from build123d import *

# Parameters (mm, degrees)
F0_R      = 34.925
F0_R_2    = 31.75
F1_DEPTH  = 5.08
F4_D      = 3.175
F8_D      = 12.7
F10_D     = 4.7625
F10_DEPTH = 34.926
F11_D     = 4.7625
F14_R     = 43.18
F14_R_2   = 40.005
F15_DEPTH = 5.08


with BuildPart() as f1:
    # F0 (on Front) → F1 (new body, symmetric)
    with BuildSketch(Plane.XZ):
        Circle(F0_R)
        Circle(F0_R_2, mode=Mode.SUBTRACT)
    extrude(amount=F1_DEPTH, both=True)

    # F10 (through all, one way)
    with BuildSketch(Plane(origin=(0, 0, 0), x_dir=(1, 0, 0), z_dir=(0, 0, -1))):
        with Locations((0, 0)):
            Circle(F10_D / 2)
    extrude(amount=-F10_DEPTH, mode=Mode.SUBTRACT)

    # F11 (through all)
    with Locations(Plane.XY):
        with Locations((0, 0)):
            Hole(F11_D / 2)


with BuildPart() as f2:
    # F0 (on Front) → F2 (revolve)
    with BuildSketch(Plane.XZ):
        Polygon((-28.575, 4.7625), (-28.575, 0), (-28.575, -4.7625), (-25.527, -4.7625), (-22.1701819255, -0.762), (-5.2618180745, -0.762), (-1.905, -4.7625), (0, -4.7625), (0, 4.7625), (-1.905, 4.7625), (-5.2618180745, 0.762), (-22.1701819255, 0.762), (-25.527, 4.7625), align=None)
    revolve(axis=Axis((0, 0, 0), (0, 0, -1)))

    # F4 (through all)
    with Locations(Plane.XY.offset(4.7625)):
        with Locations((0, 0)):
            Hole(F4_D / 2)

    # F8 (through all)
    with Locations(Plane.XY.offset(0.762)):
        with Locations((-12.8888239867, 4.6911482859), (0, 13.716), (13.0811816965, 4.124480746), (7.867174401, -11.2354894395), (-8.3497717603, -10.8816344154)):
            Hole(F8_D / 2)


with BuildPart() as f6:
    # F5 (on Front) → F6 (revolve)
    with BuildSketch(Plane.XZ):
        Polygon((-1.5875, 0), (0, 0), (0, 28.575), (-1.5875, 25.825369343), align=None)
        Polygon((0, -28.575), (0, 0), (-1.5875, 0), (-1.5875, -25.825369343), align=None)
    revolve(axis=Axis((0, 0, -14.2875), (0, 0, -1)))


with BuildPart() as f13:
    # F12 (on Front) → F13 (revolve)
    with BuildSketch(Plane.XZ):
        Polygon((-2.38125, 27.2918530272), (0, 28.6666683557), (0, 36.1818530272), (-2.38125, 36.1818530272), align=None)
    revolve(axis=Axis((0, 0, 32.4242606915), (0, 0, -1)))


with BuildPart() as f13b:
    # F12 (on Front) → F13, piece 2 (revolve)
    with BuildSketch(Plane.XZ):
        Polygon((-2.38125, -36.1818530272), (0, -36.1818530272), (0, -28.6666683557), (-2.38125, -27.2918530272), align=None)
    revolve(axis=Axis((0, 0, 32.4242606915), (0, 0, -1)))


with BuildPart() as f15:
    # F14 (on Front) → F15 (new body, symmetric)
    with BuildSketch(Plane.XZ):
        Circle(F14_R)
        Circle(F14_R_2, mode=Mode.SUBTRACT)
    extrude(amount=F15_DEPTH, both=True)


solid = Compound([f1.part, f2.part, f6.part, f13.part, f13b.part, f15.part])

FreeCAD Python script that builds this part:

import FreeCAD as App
import Part
import Sketcher
from FreeCAD import Vector
Q = App.Units.Quantity

doc = App.newDocument("Part")
body = doc.addObject("PartDesign::Body", "Body")

# Sketch on XZ plane
sketch1 = body.newObject("Sketcher::SketchObject", "Sketch")
sketch1.AttachmentSupport = (doc.getObject("XZ_Plane"), [""])
sketch1.MapMode = "FlatFace"
sketch1.addGeometry([
    Part.Circle(Vector(0, 0, 0), Vector(0, 0, 1), 35),
    Part.Circle(Vector(0, 0, 0), Vector(0, 0, 1), 32),
], False)
sketch1.addConstraint([
    Sketcher.Constraint("Coincident", 0, 3, -1, 1),
    Sketcher.Constraint("Coincident", 1, 3, -1, 1),
    Sketcher.Constraint("Diameter", 1, Q("2.5 in")),
    Sketcher.Constraint("Diameter", 0, Q("2.75 in")),
])
pad1 = body.newObject("PartDesign::Pad", "Pad")
pad1.Profile = sketch1
pad1.Length = Q("0.4 in")
pad1.Midplane = True

# Sketch on XY plane
sketch2 = body.newObject("Sketcher::SketchObject", "Sketch001")
sketch2.AttachmentSupport = (doc.getObject("XY_Plane"), [""])
sketch2.MapMode = "FlatFace"
sketch2.addGeometry(Part.Circle(Vector(0, 0, 0), Vector(0, 0, 1), 2.4), False)
sketch2.addConstraint([
    Sketcher.Constraint("Coincident", 0, 3, -1, 1),
    Sketcher.Constraint("Diameter", 0, Q("0.1875 in")),
])
pocket1 = body.newObject("PartDesign::Pocket", "Pocket")
pocket1.Profile = sketch2
pocket1.Type = "ThroughAll"
pocket1.Reversed = True

# Sketch on XY plane
sketch3 = body.newObject("Sketcher::SketchObject", "Sketch002")
sketch3.AttachmentSupport = (doc.getObject("XY_Plane"), [""])
sketch3.MapMode = "FlatFace"
sketch3.addGeometry(Part.Circle(Vector(0, 0, 0), Vector(0, 0, 1), 2.4), False)
sketch3.addConstraint([
    Sketcher.Constraint("Coincident", 0, 3, -1, 1),
    Sketcher.Constraint("Diameter", 0, Q("0.1875 in")),
])
doc.recompute()
hole = body.newObject("PartDesign::Hole", "Hole")
hole.Profile = sketch3
hole.ThreadType = "None"
hole.Diameter = Q("0.1875 in")
hole.DepthType = "ThroughAll"
body2 = doc.addObject("PartDesign::Body", "Body001")

# Sketch on XZ plane
sketch4 = body2.newObject("Sketcher::SketchObject", "Sketch003")
sketch4.AttachmentSupport = (doc.getObject("XZ_Plane001"), [""])
sketch4.MapMode = "FlatFace"
sketch4.addGeometry([
    Part.LineSegment(Vector(-28.6, 4.8, 0), Vector(-28.6, -4.8, 0)),  # 0
    Part.LineSegment(Vector(-28.6, -4.8, 0), Vector(-25.5, -4.8, 0)),  # 1
    Part.LineSegment(Vector(-25.5, -4.8, 0), Vector(-22.2, -0.8, 0)),  # 2
    Part.LineSegment(Vector(-22.2, -0.8, 0), Vector(-5.3, -0.8, 0)),  # 3
    Part.LineSegment(Vector(-5.3, -0.8, 0), Vector(-1.9, -4.8, 0)),  # 4
    Part.LineSegment(Vector(-1.9, -4.8, 0), Vector(0, -4.8, 0)),  # 5
    Part.LineSegment(Vector(0, -4.8, 0), Vector(0, 4.8, 0)),  # 6
    Part.LineSegment(Vector(0, 4.8, 0), Vector(-1.9, 4.8, 0)),  # 7
    Part.LineSegment(Vector(-1.9, 4.8, 0), Vector(-5.3, 0.8, 0)),  # 8
    Part.LineSegment(Vector(-5.3, 0.8, 0), Vector(-22.2, 0.8, 0)),  # 9
    Part.LineSegment(Vector(-22.2, 0.8, 0), Vector(-25.5, 4.8, 0)),  # 10
    Part.LineSegment(Vector(-25.5, 4.8, 0), Vector(-28.6, 4.8, 0)),  # 11
], False)
sketch4.addConstraint([
    Sketcher.Constraint("Coincident", 0, 2, 1, 1),
    Sketcher.Constraint("Coincident", 1, 2, 2, 1),
    Sketcher.Constraint("Coincident", 2, 2, 3, 1),
    Sketcher.Constraint("Coincident", 3, 2, 4, 1),
    Sketcher.Constraint("Coincident", 4, 2, 5, 1),
    Sketcher.Constraint("Coincident", 5, 2, 6, 1),
    Sketcher.Constraint("Coincident", 6, 2, 7, 1),
    Sketcher.Constraint("Coincident", 7, 2, 8, 1),
    Sketcher.Constraint("Coincident", 8, 2, 9, 1),
    Sketcher.Constraint("Coincident", 9, 2, 10, 1),
    Sketcher.Constraint("Coincident", 10, 2, 11, 1),
    Sketcher.Constraint("Coincident", 11, 2, 0, 1),
    Sketcher.Constraint("Vertical", 0),
    Sketcher.Constraint("Horizontal", 1),
    Sketcher.Constraint("Horizontal", 3),
    Sketcher.Constraint("Horizontal", 5),
    Sketcher.Constraint("Vertical", 6),
    Sketcher.Constraint("Horizontal", 7),
    Sketcher.Constraint("Horizontal", 9),
    Sketcher.Constraint("Horizontal", 11),
    Sketcher.Constraint("Symmetric", 5, 2, 6, 2, -1, 1),
    Sketcher.Constraint("Symmetric", 3, 2, 8, 2, -1),
    Sketcher.Constraint("Symmetric", 1, 2, 10, 2, -1),
    Sketcher.Constraint("Parallel", 2, 8),
    Sketcher.Constraint("Parallel", 4, 10),
    Sketcher.Constraint("Horizontal", 1, 2, 4, 2),
    Sketcher.Constraint("Vertical", 4, 2, 7, 2),
    Sketcher.Constraint("Angle", 2, Q("50 deg")),
    Sketcher.Constraint("DistanceX", 1, 1, 1, 2, Q("0.12 in")),
    Sketcher.Constraint("DistanceX", 5, 1, 5, 2, Q("0.075 in")),
    Sketcher.Constraint("DistanceY", 0, 2, 0, 1, Q("0.375 in")),
    Sketcher.Constraint("DistanceY", 2, 2, -1, 1, Q("0.03 in")),
    Sketcher.Constraint("DistanceX", 1, 2, 4, 2, Q("0.93 in")),
])
revolution = body2.newObject("PartDesign::Revolution", "Revolution")
revolution.Profile = sketch4
revolution.ReferenceAxis = (sketch4, ["V_Axis"])
revolution.Angle = 360

# Sketch on XY plane
sketch5 = body2.newObject("Sketcher::SketchObject", "Sketch004")
sketch5.AttachmentSupport = (doc.getObject("XY_Plane001"), [""])
sketch5.MapMode = "FlatFace"
sketch5.AttachmentOffset = App.Placement(Vector(0, 0, 0.1875 * 25.4), App.Rotation())
sketch5.addGeometry(Part.Circle(Vector(0, 0, 0), Vector(0, 0, 1), 1.6), False)
sketch5.addConstraint([
    Sketcher.Constraint("Coincident", 0, 3, -1, 1),
    Sketcher.Constraint("Diameter", 0, Q("0.125 in")),
])
doc.recompute()
hole2 = body2.newObject("PartDesign::Hole", "Hole001")
hole2.Profile = sketch5
hole2.ThreadType = "None"
hole2.Diameter = Q("0.125 in")
hole2.DepthType = "ThroughAll"

# Sketch on XY plane
sketch6 = body2.newObject("Sketcher::SketchObject", "Sketch005")
sketch6.AttachmentSupport = (doc.getObject("XY_Plane001"), [""])
sketch6.MapMode = "FlatFace"
sketch6.AttachmentOffset = App.Placement(Vector(0, 0, 0.03 * 25.4), App.Rotation())
sketch6.addGeometry([
    Part.Circle(Vector(-13, 5, 0), Vector(0, 0, 1), 6),  # 0
    Part.Circle(Vector(0, 14, 0), Vector(0, 0, 1), 6),  # 1
    Part.Circle(Vector(13, 4, 0), Vector(0, 0, 1), 6),  # 2
    Part.Circle(Vector(8, -11, 0), Vector(0, 0, 1), 6),  # 3
    Part.Circle(Vector(-8, -11, 0), Vector(0, 0, 1), 6),  # 4
], False)
sketch6.addConstraint([
    Sketcher.Constraint("Equal", 0, 1),
    Sketcher.Constraint("Equal", 1, 2),
    Sketcher.Constraint("Equal", 2, 3),
    Sketcher.Constraint("Equal", 3, 4),
    Sketcher.Constraint("PointOnObject", 1, 3, -2),
    Sketcher.Constraint("Diameter", 0, Q("0.5 in")),
    Sketcher.Constraint("DistanceY", -1, 1, 1, 3, Q("0.54 in")),
    Sketcher.Constraint("DistanceX", 0, 3, 3, 3, 20.755998),
    Sketcher.Constraint("DistanceY", -1, 1, 0, 3, 4.691148),
    Sketcher.Constraint("DistanceX", -1, 1, 2, 3, 13.081182),
    Sketcher.Constraint("DistanceY", -1, 1, 2, 3, 4.124481),
    Sketcher.Constraint("DistanceY", 3, 3, -1, 1, 11.235489),
    Sketcher.Constraint("DistanceX", 4, 3, -1, 1, 8.349772),
    Sketcher.Constraint("DistanceX", 0, 3, -1, 1, 12.888824),
    Sketcher.Constraint("DistanceY", 4, 3, -1, 1, 10.881634),
])
doc.recompute()
hole3 = body2.newObject("PartDesign::Hole", "Hole002")
hole3.Profile = sketch6
hole3.ThreadType = "None"
hole3.Diameter = Q("0.5 in")
hole3.DepthType = "ThroughAll"
body3 = doc.addObject("PartDesign::Body", "Body002")

# Sketch on XZ plane
sketch7 = body3.newObject("Sketcher::SketchObject", "Sketch006")
sketch7.AttachmentSupport = (doc.getObject("XZ_Plane002"), [""])
sketch7.MapMode = "FlatFace"
sketch7.addGeometry([
    Part.LineSegment(Vector(0, 28.6, 0), Vector(-1.6, 25.8, 0)),
    Part.LineSegment(Vector(-1.6, 25.8, 0), Vector(-1.6, -25.8, 0)),
    Part.LineSegment(Vector(-1.6, -25.8, 0), Vector(0, -28.6, 0)),
    Part.LineSegment(Vector(0, -28.6, 0), Vector(0, 28.6, 0)),
], False)
sketch7.addConstraint([
    Sketcher.Constraint("Coincident", 0, 2, 1, 1),
    Sketcher.Constraint("Coincident", 1, 2, 2, 1),
    Sketcher.Constraint("Coincident", 2, 2, 3, 1),
    Sketcher.Constraint("Coincident", 3, 2, 0, 1),
    Sketcher.Constraint("Vertical", 1),
    Sketcher.Constraint("Vertical", 3),
    Sketcher.Constraint("Symmetric", 2, 2, 3, 2, -1, 1),
    Sketcher.Constraint("Equal", 0, 2),
    Sketcher.Constraint("Angle", 0, Q("-120 deg")),
    Sketcher.Constraint("DistanceY", 3, 1, 3, 2, Q("2.25 in")),
    Sketcher.Constraint("Distance", 0, Q("0.125 in")),
])
revolution2 = body3.newObject("PartDesign::Revolution", "Revolution001")
revolution2.Profile = sketch7
revolution2.ReferenceAxis = (sketch7, ["V_Axis"])
revolution2.Angle = 360
body4 = doc.addObject("PartDesign::Body", "Body003")

# Sketch on XZ plane
sketch8 = body4.newObject("Sketcher::SketchObject", "Sketch007")
sketch8.AttachmentSupport = (doc.getObject("XZ_Plane003"), [""])
sketch8.MapMode = "FlatFace"
sketch8.addGeometry([
    Part.LineSegment(Vector(-2.4, 27.3, 0), Vector(0, 28.7, 0)),
    Part.LineSegment(Vector(0, 28.7, 0), Vector(0, 36.2, 0)),
    Part.LineSegment(Vector(0, 36.2, 0), Vector(-2.4, 36.2, 0)),
    Part.LineSegment(Vector(-2.4, 36.2, 0), Vector(-2.4, 27.3, 0)),
], False)
sketch8.addConstraint([
    Sketcher.Constraint("Coincident", 0, 2, 1, 1),
    Sketcher.Constraint("Coincident", 1, 2, 2, 1),
    Sketcher.Constraint("Coincident", 2, 2, 3, 1),
    Sketcher.Constraint("Coincident", 3, 2, 0, 1),
    Sketcher.Constraint("Vertical", 1),
    Sketcher.Constraint("Horizontal", 2),
    Sketcher.Constraint("Vertical", 3),
    Sketcher.Constraint("PointOnObject", 0, 2, -2),
    Sketcher.Constraint("Angle", 0, Q("30 deg")),
    Sketcher.Constraint("DistanceY", 3, 2, 3, 1, Q("0.35 in")),
    Sketcher.Constraint("DistanceX", 2, 2, 2, 1, Q("0.09375 in")),
    Sketcher.Constraint("DistanceY", -1, 1, 0, 2, 28.666668),
])
revolution3 = body4.newObject("PartDesign::Revolution", "Revolution002")
revolution3.Profile = sketch8
revolution3.ReferenceAxis = (sketch8, ["V_Axis"])
revolution3.Angle = 360
body5 = doc.addObject("PartDesign::Body", "Body004")

# Sketch on XZ plane
sketch9 = body5.newObject("Sketcher::SketchObject", "Sketch008")
sketch9.AttachmentSupport = (doc.getObject("XZ_Plane004"), [""])
sketch9.MapMode = "FlatFace"
sketch9.addGeometry([
    Part.LineSegment(Vector(-2.4, -36.2, 0), Vector(0, -36.2, 0)),
    Part.LineSegment(Vector(0, -36.2, 0), Vector(0, -28.7, 0)),
    Part.LineSegment(Vector(0, -28.7, 0), Vector(-2.4, -27.3, 0)),
    Part.LineSegment(Vector(-2.4, -27.3, 0), Vector(-2.4, -36.2, 0)),
], False)
sketch9.addConstraint([
    Sketcher.Constraint("Coincident", 0, 2, 1, 1),
    Sketcher.Constraint("Coincident", 1, 2, 2, 1),
    Sketcher.Constraint("Coincident", 2, 2, 3, 1),
    Sketcher.Constraint("Coincident", 3, 2, 0, 1),
    Sketcher.Constraint("Horizontal", 0),
    Sketcher.Constraint("Vertical", 1),
    Sketcher.Constraint("Vertical", 3),
    Sketcher.Constraint("PointOnObject", 0, 2, -2),
    Sketcher.Constraint("Angle", 2, Q("150 deg")),
    Sketcher.Constraint("DistanceY", 3, 2, 3, 1, Q("0.35 in")),
    Sketcher.Constraint("DistanceX", 0, 1, 0, 2, Q("0.09375 in")),
    Sketcher.Constraint("DistanceY", 1, 2, -1, 1, 28.666668),
])
revolution4 = body5.newObject("PartDesign::Revolution", "Revolution003")
revolution4.Profile = sketch9
revolution4.ReferenceAxis = (sketch9, ["V_Axis"])
revolution4.Angle = 360
body6 = doc.addObject("PartDesign::Body", "Body005")

# Sketch on XZ plane
sketch10 = body6.newObject("Sketcher::SketchObject", "Sketch009")
sketch10.AttachmentSupport = (doc.getObject("XZ_Plane005"), [""])
sketch10.MapMode = "FlatFace"
sketch10.addGeometry([
    Part.Circle(Vector(0, 0, 0), Vector(0, 0, 1), 43),
    Part.Circle(Vector(0, 0, 0), Vector(0, 0, 1), 40),
], False)
sketch10.addConstraint([
    Sketcher.Constraint("Coincident", 0, 3, -1, 1),
    Sketcher.Constraint("Coincident", 1, 3, -1, 1),
    Sketcher.Constraint("Diameter", 0, Q("3.4 in")),
    Sketcher.Constraint("Diameter", 1, Q("3.15 in")),
])
pad2 = body6.newObject("PartDesign::Pad", "Pad001")
pad2.Profile = sketch10
pad2.Length = Q("0.4 in")
pad2.Midplane = True

doc.recompute()
